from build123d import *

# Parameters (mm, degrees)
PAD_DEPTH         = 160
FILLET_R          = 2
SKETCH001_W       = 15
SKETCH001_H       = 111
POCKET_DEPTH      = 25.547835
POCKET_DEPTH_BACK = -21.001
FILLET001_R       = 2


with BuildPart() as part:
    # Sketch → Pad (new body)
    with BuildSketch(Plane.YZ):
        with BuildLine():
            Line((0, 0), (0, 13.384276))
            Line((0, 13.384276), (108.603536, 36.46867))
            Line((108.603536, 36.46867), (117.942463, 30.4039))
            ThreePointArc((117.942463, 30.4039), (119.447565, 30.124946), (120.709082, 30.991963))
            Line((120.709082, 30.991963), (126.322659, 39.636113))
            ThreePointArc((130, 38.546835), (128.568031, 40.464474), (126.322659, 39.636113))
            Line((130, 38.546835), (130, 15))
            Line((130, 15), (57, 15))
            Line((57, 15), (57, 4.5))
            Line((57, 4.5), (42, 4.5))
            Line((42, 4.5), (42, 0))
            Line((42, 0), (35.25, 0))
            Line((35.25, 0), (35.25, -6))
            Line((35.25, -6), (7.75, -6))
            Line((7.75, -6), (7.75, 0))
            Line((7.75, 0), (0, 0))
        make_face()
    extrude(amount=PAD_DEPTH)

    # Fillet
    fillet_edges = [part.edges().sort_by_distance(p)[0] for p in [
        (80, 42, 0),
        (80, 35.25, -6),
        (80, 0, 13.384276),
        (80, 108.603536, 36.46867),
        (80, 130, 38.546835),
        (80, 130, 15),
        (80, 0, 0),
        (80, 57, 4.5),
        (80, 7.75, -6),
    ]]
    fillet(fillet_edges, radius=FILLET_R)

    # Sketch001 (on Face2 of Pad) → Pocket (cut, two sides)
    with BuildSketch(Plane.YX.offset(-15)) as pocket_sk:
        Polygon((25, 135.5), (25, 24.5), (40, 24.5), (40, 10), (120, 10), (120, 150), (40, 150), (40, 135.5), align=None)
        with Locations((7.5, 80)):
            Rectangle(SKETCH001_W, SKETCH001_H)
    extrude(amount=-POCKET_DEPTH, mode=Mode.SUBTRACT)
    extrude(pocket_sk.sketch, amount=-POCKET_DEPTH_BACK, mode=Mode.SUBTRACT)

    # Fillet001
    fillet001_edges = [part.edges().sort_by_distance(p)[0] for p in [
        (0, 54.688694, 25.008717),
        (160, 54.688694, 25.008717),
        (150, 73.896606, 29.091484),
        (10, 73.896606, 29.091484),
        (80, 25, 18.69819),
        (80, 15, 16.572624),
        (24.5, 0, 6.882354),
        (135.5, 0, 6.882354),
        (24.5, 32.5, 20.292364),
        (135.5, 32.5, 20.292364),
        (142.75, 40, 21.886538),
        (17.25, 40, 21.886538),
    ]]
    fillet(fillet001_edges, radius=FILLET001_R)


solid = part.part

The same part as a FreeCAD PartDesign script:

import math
import FreeCAD as App
import Part
import Sketcher
Q = App.Units.Quantity


def edges_at(feature, points):
    """Names of the edges that pass closest to the given points."""
    edges = feature.Shape.Edges
    near = lambda p: min(range(len(edges)), key=lambda i: edges[i].distToShape(Part.Vertex(*p))[0])
    return sorted({f"Edge{near(p) + 1}" for p in points})


def add_polygon(sketch, points):
    """Adds a closed chain of lines whose ends are joined by coincident constraints."""
    first, n = sketch.GeometryCount, len(points)
    for a, b in zip(points, points[1:] + points[:1]):
        sketch.addGeometry(Part.LineSegment(App.Vector(*a, 0), App.Vector(*b, 0)), False)
    for i in range(n):
        sketch.addConstraint(Sketcher.Constraint("Coincident", first + i, 2, first + (i + 1) % n, 1))

doc = App.newDocument("Part")
params = doc.addObject("Spreadsheet::Sheet", "Params")
for row, (alias, value) in enumerate([
    ("sketch1_radius", "2 mm"),
    ("sketch1_width", "15 mm"),
    ("sketch1_width2", "73 mm"),
    ("sketch1_height", "6 mm"),
    ("sketch1_width3", "27.5 mm"),
    ("pad1_length", "160 mm"),
    ("fillet_radius", "2 mm"),
    ("sketch2_width", "111 mm"),
    ("sketch2_width2", "140 mm"),
    ("sketch2_height", "15 mm"),
    ("sketch2_height2", "80 mm"),
    ("fillet2_radius", "2 mm"),
], start=1):
    params.set(f"A{row}", alias)
    params.set(f"B{row}", "=" + value)
    params.setAlias(f"B{row}", alias)

body = doc.addObject("PartDesign::Body", "Body")

# Sketch on YZ plane
sketch1 = body.newObject("Sketcher::SketchObject", "Sketch")
sketch1.AttachmentSupport = (doc.getObject("YZ_Plane"), [""])
sketch1.MapMode = "FlatFace"
sketch1.addGeometry([
    Part.LineSegment(App.Vector(0, 13.384276, 0), App.Vector(0, 0, 0)),  # 0
    Part.LineSegment(App.Vector(0, 0, 0), App.Vector(7.75, 0, 0)),  # 1
    Part.LineSegment(App.Vector(7.75, 0, 0), App.Vector(7.75, -6, 0)),  # 2
    Part.LineSegment(App.Vector(7.75, -6, 0), App.Vector(35.25, -6, 0)),  # 3
    Part.LineSegment(App.Vector(35.25, -6, 0), App.Vector(35.25, 0, 0)),  # 4
    Part.LineSegment(App.Vector(35.25, 0, 0), App.Vector(42, 0, 0)),  # 5
    Part.LineSegment(App.Vector(42, 0, 0), App.Vector(42, 4.5, 0)),  # 6
    Part.LineSegment(App.Vector(42, 4.5, 0), App.Vector(57, 4.5, 0)),  # 7
    Part.LineSegment(App.Vector(57, 4.5, 0), App.Vector(57, 15, 0)),  # 8
    Part.LineSegment(App.Vector(57, 15, 0), App.Vector(130, 15, 0)),  # 9
    Part.LineSegment(App.Vector(130, 15, 0), App.Vector(130, 38.546835, 0)),  # 10
    Part.ArcOfCircle(Part.Circle(App.Vector(128, 38.546835, 0), App.Vector(0, 0, 1), 2), math.radians(0.000012), math.radians(146.999989)),  # 11
    Part.LineSegment(App.Vector(126.322659, 39.636113, 0), App.Vector(120.709082, 30.991963, 0)),  # 12
    Part.ArcOfCircle(Part.Circle(App.Vector(119.031741, 32.081241, 0), App.Vector(0, 0, 1), 2), math.radians(-123.000006), math.radians(-32.999995)),  # 13
    Part.LineSegment(App.Vector(117.942463, 30.4039, 0), App.Vector(108.603536, 36.46867, 0)),  # 14
    Part.LineSegment(App.Vector(108.603536, 36.46867, 0), App.Vector(0, 13.384276, 0)),  # 15
], False)
sketch1.addConstraint([
    Sketcher.Constraint("Coincident", 0, 2, 1, 1),
    Sketcher.Constraint("Coincident", 1, 2, 2, 1),
    Sketcher.Constraint("Coincident", 2, 2, 3, 1),
    Sketcher.Constraint("Coincident", 3, 2, 4, 1),
    Sketcher.Constraint("Coincident", 4, 2, 5, 1),
    Sketcher.Constraint("Coincident", 5, 2, 6, 1),
    Sketcher.Constraint("Coincident", 6, 2, 7, 1),
    Sketcher.Constraint("Coincident", 7, 2, 8, 1),
    Sketcher.Constraint("Coincident", 8, 2, 9, 1),
    Sketcher.Constraint("Coincident", 9, 2, 10, 1),
    Sketcher.Constraint("Tangent", 10, 2, 11, 1),
    Sketcher.Constraint("Tangent", 11, 2, 12, 1),
    Sketcher.Constraint("Tangent", 12, 2, 13, 2),
    Sketcher.Constraint("Tangent", 13, 1, 14, 1),
    Sketcher.Constraint("Coincident", 14, 2, 15, 1),
    Sketcher.Constraint("Coincident", 15, 2, 0, 1),
    Sketcher.Constraint("Vertical", 0),
    Sketcher.Constraint("Horizontal", 1),
    Sketcher.Constraint("Vertical", 2),
    Sketcher.Constraint("Horizontal", 3),
    Sketcher.Constraint("Vertical", 4),
    Sketcher.Constraint("Horizontal", 5),
    Sketcher.Constraint("Vertical", 6),
    Sketcher.Constraint("Horizontal", 7),
    Sketcher.Constraint("Vertical", 8),
    Sketcher.Constraint("Horizontal", 9),
    Sketcher.Constraint("Vertical", 10),
    Sketcher.Constraint("Coincident", 0, 2, -1, 1),
    Sketcher.Constraint("Equal", 11, 13),
    Sketcher.Constraint("PointOnObject", 4, 2, -1),
    Sketcher.Constraint("Perpendicular", 12, 14),
    Sketcher.Constraint("Radius", 11, Q("2 mm")),
    Sketcher.Constraint("DistanceX", 7, 1, 7, 2, Q("15 mm")),
    Sketcher.Constraint("DistanceX", 9, 1, 9, 2, Q("73 mm")),
    Sketcher.Constraint("DistanceY", 2, 2, 2, 1, Q("6 mm")),
    Sketcher.Constraint("Angle", 12, Q("-123.000002 deg")),
    Sketcher.Constraint("Angle", 15, Q("-168 deg")),
    Sketcher.Constraint("DistanceX", 3, 1, 3, 2, Q("27.5 mm")),
    Sketcher.Constraint("DistanceY", 6, 1, 6, 2, Q("4.5 mm")),
    Sketcher.Constraint("DistanceY", 8, 1, 8, 2, Q("10.5 mm")),
    Sketcher.Constraint("DistanceX", -1, 1, 11, 3, Q("128 mm")),
    Sketcher.Constraint("DistanceX", 1, 1, 1, 2, Q("7.75 mm")),
    Sketcher.Constraint("DistanceY", -1, 1, 13, 1, Q("30.4039 mm")),
    Sketcher.Constraint("DistanceY", 0, 2, 0, 1, Q("13.384276 mm")),
    Sketcher.Constraint("DistanceY", 10, 1, 10, 2, Q("23.546835 mm")),
])
sketch1.setExpression("Constraints[31]", "Params.sketch1_radius")
sketch1.setExpression("Constraints[32]", "Params.sketch1_width")
sketch1.setExpression("Constraints[33]", "Params.sketch1_width2")
sketch1.setExpression("Constraints[34]", "Params.sketch1_height")
sketch1.setExpression("Constraints[37]", "Params.sketch1_width3")
pad1 = body.newObject("PartDesign::Pad", "Pad")
pad1.Profile = sketch1
pad1.setExpression("Length", "Params.pad1_length")
doc.recompute()

fillet = body.newObject("PartDesign::Fillet", "Fillet")
fillet.Base = (pad1, edges_at(pad1, [
    (80, 42, 0),
    (80, 35.25, -6),
    (80, 0, 13.384),
    (80, 108.604, 36.469),
    (80, 130, 38.547),
    (80, 130, 15),
    (80, 0, 0),
    (80, 57, 4.5),
    (80, 7.75, -6),
]))
fillet.setExpression("Radius", "Params.fillet_radius")

# Sketch on XY plane
sketch2 = body.newObject("Sketcher::SketchObject", "Sketch001")
sketch2.AttachmentSupport = (doc.getObject("XY_Plane"), [""])
sketch2.MapMode = "FlatFace"
sketch2.AttachmentOffset = App.Placement(App.Vector(0, 0, 15), App.Rotation())
add_polygon(sketch2, [(135.5, 25), (24.5, 25), (24.5, 40), (10, 40), (10, 120), (150, 120), (150, 40), (135.5, 40)])  # lines 0-7
add_polygon(sketch2, [(135.5, 0), (24.5, 0), (24.5, 15), (135.5, 15)])  # lines 8-11
sketch2.addConstraint([
    Sketcher.Constraint("Horizontal", 0),
    Sketcher.Constraint("Vertical", 1),
    Sketcher.Constraint("Horizontal", 2),
    Sketcher.Constraint("Vertical", 3),
    Sketcher.Constraint("Horizontal", 4),
    Sketcher.Constraint("Vertical", 5),
    Sketcher.Constraint("Horizontal", 6),
    Sketcher.Constraint("Vertical", 7),
    Sketcher.Constraint("Horizontal", 8),
    Sketcher.Constraint("Vertical", 9),
    Sketcher.Constraint("Horizontal", 10),
    Sketcher.Constraint("Vertical", 11),
    Sketcher.Constraint("PointOnObject", 8, 2, -1),
    Sketcher.Constraint("Horizontal", 2, 2, 5, 2),
    Sketcher.Constraint("Vertical", 1, 2, 8, 2),
    Sketcher.Constraint("Vertical", 7, 2, 10, 2),
    Sketcher.Constraint("Equal", 2, 6),
    Sketcher.Constraint("Equal", 7, 9),
    Sketcher.Constraint("DistanceX", 0, 2, 0, 1, Q("111 mm")),
    Sketcher.Constraint("DistanceX", 4, 1, 4, 2, Q("140 mm")),
    Sketcher.Constraint("DistanceY", 1, 1, 1, 2, Q("15 mm")),
    Sketcher.Constraint("DistanceY", 3, 1, 3, 2, Q("80 mm")),
    Sketcher.Constraint("DistanceY", -1, 1, 0, 2, Q("25 mm")),
    Sketcher.Constraint("DistanceX", -1, 1, 2, 2, Q("10 mm")),
])
sketch2.setExpression("Constraints[30]", "Params.sketch2_width")
sketch2.setExpression("Constraints[31]", "Params.sketch2_width2")
sketch2.setExpression("Constraints[32]", "Params.sketch2_height")
sketch2.setExpression("Constraints[33]", "Params.sketch2_height2")
pocket1 = body.newObject("PartDesign::Pocket", "Pocket")
pocket1.Profile = sketch2
pocket1.Type = "ThroughAll"
pocket1.Midplane = True
doc.recompute()

fillet2 = body.newObject("PartDesign::Fillet", "Fillet001")
fillet2.Base = (pocket1, edges_at(pocket1, [
    (0, 54.689, 25.009),
    (160, 54.689, 25.009),
    (150, 73.897, 29.091),
    (10, 73.897, 29.091),
    (80, 25, 18.698),
    (80, 15, 16.573),
    (24.5, 0, 6.882),
    (135.5, 0, 6.882),
    (24.5, 32.5, 20.292),
    (135.5, 32.5, 20.292),
    (142.75, 40, 21.887),
    (17.25, 40, 21.887),
]))
fillet2.setExpression("Radius", "Params.fillet2_radius")

doc.recompute()
